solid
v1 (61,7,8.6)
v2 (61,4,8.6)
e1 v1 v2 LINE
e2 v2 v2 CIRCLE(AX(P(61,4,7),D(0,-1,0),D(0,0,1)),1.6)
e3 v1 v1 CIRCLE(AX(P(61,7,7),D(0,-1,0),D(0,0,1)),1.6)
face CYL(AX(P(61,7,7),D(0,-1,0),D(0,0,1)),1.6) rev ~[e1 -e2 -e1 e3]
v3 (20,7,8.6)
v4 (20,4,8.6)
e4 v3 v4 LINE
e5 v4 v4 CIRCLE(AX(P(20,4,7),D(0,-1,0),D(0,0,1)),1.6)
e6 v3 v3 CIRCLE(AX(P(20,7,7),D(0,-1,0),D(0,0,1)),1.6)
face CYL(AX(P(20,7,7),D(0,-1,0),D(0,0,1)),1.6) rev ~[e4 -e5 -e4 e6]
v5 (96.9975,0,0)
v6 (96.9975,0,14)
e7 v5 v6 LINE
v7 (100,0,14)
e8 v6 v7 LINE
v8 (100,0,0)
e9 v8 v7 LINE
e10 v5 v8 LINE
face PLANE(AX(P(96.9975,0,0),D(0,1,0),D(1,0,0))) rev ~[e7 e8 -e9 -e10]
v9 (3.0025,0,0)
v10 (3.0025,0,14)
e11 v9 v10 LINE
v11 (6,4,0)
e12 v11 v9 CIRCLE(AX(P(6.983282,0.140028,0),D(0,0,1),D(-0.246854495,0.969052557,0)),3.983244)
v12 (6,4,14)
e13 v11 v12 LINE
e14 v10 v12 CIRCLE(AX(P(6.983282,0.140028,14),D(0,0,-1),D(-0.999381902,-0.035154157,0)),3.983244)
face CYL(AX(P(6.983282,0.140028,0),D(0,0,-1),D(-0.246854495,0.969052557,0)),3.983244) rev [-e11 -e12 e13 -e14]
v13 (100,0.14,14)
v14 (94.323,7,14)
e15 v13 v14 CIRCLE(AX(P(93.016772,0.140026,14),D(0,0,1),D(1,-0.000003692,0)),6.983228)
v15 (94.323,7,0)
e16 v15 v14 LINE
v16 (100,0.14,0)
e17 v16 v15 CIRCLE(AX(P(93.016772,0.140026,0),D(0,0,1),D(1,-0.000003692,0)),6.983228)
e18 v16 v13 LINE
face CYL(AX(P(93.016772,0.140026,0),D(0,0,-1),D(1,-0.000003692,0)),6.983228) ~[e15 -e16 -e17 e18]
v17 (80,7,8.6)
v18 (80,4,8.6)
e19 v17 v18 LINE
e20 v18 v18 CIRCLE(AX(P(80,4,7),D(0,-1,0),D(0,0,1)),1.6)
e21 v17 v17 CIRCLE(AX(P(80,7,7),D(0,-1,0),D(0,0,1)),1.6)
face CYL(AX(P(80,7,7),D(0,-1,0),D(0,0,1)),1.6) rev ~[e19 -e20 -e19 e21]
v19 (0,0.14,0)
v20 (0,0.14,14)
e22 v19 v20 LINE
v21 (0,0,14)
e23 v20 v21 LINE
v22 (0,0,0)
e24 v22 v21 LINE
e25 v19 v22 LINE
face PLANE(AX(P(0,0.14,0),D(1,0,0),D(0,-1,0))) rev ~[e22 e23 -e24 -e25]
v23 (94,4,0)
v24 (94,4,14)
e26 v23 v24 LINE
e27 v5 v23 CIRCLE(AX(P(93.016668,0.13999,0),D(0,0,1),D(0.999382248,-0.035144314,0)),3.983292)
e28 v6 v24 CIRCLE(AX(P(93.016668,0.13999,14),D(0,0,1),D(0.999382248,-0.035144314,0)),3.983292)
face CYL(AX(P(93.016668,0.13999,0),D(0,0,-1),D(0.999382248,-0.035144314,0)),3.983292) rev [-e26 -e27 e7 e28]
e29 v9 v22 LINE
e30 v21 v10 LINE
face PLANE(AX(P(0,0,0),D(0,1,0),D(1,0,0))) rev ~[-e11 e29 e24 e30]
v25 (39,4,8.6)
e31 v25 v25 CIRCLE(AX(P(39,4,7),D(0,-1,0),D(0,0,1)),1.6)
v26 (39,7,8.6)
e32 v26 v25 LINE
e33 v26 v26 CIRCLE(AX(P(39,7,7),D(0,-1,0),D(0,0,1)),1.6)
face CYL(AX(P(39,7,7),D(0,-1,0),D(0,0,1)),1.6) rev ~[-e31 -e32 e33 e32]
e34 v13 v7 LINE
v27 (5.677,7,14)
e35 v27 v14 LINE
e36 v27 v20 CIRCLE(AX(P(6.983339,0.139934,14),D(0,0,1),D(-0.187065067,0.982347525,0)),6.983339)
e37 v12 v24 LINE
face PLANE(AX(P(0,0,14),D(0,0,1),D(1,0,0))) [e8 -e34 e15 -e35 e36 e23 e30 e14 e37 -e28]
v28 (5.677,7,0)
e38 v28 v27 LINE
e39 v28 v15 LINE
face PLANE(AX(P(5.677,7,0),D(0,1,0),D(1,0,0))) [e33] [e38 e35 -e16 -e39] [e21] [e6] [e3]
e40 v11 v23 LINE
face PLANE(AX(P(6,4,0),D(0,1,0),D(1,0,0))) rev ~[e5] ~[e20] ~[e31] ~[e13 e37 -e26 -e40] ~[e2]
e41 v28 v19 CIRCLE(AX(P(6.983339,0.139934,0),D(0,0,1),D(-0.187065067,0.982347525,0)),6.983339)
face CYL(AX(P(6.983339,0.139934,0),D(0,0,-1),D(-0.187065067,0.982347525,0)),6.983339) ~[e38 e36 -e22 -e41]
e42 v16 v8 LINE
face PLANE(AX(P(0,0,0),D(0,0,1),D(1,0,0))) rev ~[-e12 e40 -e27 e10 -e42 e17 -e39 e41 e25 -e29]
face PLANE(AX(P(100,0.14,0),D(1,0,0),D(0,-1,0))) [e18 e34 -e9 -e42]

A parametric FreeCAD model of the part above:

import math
import FreeCAD as App
import Part
import Sketcher

doc = App.newDocument("Part")
body = doc.addObject("PartDesign::Body", "Body")

# Sketch on XY plane
sketch1 = body.newObject("Sketcher::SketchObject", "Sketch")
sketch1.AttachmentSupport = (doc.getObject("XY_Plane"), [""])
sketch1.MapMode = "FlatFace"
sketch1.addGeometry([
    Part.LineSegment(App.Vector(100, 0, 0), App.Vector(100, 0.14, 0)),  # 0
    Part.ArcOfCircle(Part.Circle(App.Vector(93.02, 0.14, 0), App.Vector(0, 0, 1), 6.98), math.radians(0), math.radians(79)),  # 1
    Part.LineSegment(App.Vector(94.32, 7, 0), App.Vector(5.68, 7, 0)),  # 2
    Part.ArcOfCircle(Part.Circle(App.Vector(6.98, 0.14, 0), App.Vector(0, 0, 1), 6.98), math.radians(101), math.radians(180)),  # 3
    Part.LineSegment(App.Vector(0, 0.14, 0), App.Vector(0, 0, 0)),  # 4
    Part.LineSegment(App.Vector(0, 0, 0), App.Vector(3, 0, 0)),  # 5
    Part.ArcOfCircle(Part.Circle(App.Vector(6.98, 0.14, 0), App.Vector(0, 0, 1), 3.98), math.radians(104), math.radians(182)),  # 6
    Part.LineSegment(App.Vector(6, 4, 0), App.Vector(94, 4, 0)),  # 7
    Part.ArcOfCircle(Part.Circle(App.Vector(93.02, 0.14, 0), App.Vector(0, 0, 1), 3.98), math.radians(-2), math.radians(76)),  # 8
    Part.LineSegment(App.Vector(97, 0, 0), App.Vector(100, 0, 0)),  # 9
], False)
sketch1.addConstraint([
    Sketcher.Constraint("Tangent", 0, 2, 1, 1),
    Sketcher.Constraint("Coincident", 1, 2, 2, 1),
    Sketcher.Constraint("Coincident", 2, 2, 3, 1),
    Sketcher.Constraint("Tangent", 3, 2, 4, 1),
    Sketcher.Constraint("Coincident", 4, 2, 5, 1),
    Sketcher.Constraint("Coincident", 5, 2, 6, 2),
    Sketcher.Constraint("Coincident", 6, 1, 7, 1),
    Sketcher.Constraint("Coincident", 7, 2, 8, 2),
    Sketcher.Constraint("Coincident", 8, 1, 9, 1),
    Sketcher.Constraint("Coincident", 9, 2, 0, 1),
    Sketcher.Constraint("Vertical", 0),
    Sketcher.Constraint("Horizontal", 2),
    Sketcher.Constraint("Vertical", 4),
    Sketcher.Constraint("Horizontal", 5),
    Sketcher.Constraint("Horizontal", 7),
    Sketcher.Constraint("Horizontal", 9),
    Sketcher.Constraint("Coincident", 4, 2, -1, 1),
    Sketcher.Constraint("Coincident", 6, 3, 3, 3),
    Sketcher.Constraint("Coincident", 8, 3, 1, 3),
    Sketcher.Constraint("Equal", 1, 3),
    Sketcher.Constraint("Equal", 6, 8),
    Sketcher.Constraint("PointOnObject", 8, 1, -1),
    Sketcher.Constraint("Horizontal", 1, 3, 3, 3),
    Sketcher.Constraint("DistanceX", -1, 1, 0, 2, 100.0),
    Sketcher.Constraint("DistanceY", -1, 1, 1, 2, 7.0),
    Sketcher.Constraint("DistanceY", 6, 1, 2, 2, 3.0),
    Sketcher.Constraint("DistanceX", 7, 1, 7, 2, 88.0),
    Sketcher.Constraint("DistanceY", 0, 1, 0, 2, 0.14),
    Sketcher.Constraint("Radius", 1, 6.9833),
])
pad1 = body.newObject("PartDesign::Pad", "Pad")
pad1.Profile = sketch1
pad1.Length = 14

# Sketch on XZ plane
sketch2 = body.newObject("Sketcher::SketchObject", "Sketch001")
sketch2.AttachmentSupport = (doc.getObject("XZ_Plane"), [""])
sketch2.MapMode = "FlatFace"
sketch2.AttachmentOffset = App.Placement(App.Vector(0, 0, -7), App.Rotation())
sketch2.addGeometry([
    Part.Circle(App.Vector(20, 7, 0), App.Vector(0, 0, 1), 1.6),
    Part.Circle(App.Vector(39, 7, 0), App.Vector(0, 0, 1), 1.6),
    Part.Circle(App.Vector(61, 7, 0), App.Vector(0, 0, 1), 1.6),
    Part.Circle(App.Vector(80, 7, 0), App.Vector(0, 0, 1), 1.6),
], False)
sketch2.addConstraint([
    Sketcher.Constraint("Equal", 0, 1),
    Sketcher.Constraint("Equal", 1, 2),
    Sketcher.Constraint("Equal", 2, 3),
    Sketcher.Constraint("Horizontal", 0, 3, 1, 3),
    Sketcher.Constraint("Horizontal", 1, 3, 2, 3),
    Sketcher.Constraint("Horizontal", 2, 3, 3, 3),
    Sketcher.Constraint("Diameter", 0, 3.2),
    Sketcher.Constraint("DistanceX", -1, 1, 0, 3, 20.0),
    Sketcher.Constraint("DistanceY", -1, 1, 0, 3, 7.0),
    Sketcher.Constraint("DistanceX", -1, 1, 1, 3, 39.0),
    Sketcher.Constraint("DistanceX", -1, 1, 2, 3, 61.0),
    Sketcher.Constraint("DistanceX", -1, 1, 3, 3, 80.0),
])
doc.recompute()
hole = body.newObject("PartDesign::Hole", "Hole")
hole.Profile = sketch2
hole.ThreadType = "None"
hole.Diameter = 3.2
hole.DepthType = "Dimension"
hole.Depth = 3
hole.DrillPoint = "Angled"
hole.DrillPointAngle = 118
hole.Reversed = True

doc.recompute()
